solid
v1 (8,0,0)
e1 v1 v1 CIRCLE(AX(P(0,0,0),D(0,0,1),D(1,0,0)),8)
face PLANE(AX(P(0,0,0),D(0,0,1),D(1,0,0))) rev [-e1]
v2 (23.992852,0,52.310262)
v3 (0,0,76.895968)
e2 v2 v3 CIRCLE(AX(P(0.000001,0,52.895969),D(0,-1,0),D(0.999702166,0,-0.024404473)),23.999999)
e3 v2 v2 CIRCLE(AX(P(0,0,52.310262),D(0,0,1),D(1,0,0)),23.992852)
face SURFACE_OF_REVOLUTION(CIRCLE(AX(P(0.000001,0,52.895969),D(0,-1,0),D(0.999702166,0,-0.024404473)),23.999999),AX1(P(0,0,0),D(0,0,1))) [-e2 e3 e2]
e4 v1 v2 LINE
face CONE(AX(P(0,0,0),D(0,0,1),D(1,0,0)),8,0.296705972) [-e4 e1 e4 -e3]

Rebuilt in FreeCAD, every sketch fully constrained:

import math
import FreeCAD as App
import Part
import Sketcher

V = App.Vector
Q = App.Units.Quantity

doc = App.newDocument("Part")
params = doc.addObject("Spreadsheet::Sheet", "Params")
for row, (alias, value) in enumerate([
    ("sketch1_radius", "23.999999 mm"),
    ("sketch1_width", "8 mm"),
    ("revolution_angle", "360 deg"),
], start=1):
    params.set(f"A{row}", alias)
    params.set(f"B{row}", "=" + value)
    params.setAlias(f"B{row}", alias)

body = doc.addObject("PartDesign::Body", "Body")

# Sketch on XZ plane
sketch1 = body.newObject("Sketcher::SketchObject", "Sketch")
sketch1.AttachmentSupport = (doc.getObject("XZ_Plane"), [""])
sketch1.MapMode = "FlatFace"
sketch1.addGeometry(Part.LineSegment(V(0, 0, 0), V(8, 0, 0)), False)
sketch1.addGeometry(Part.LineSegment(V(8, 0, 0), V(23.992852, 52.310262, 0)), False)
sketch1.addGeometry(Part.ArcOfCircle(Part.Circle(V(0.000001, 52.895969, 0), V(0, 0, 1), 23.999999), math.radians(-1.398412), math.radians(90.000003)), False)
sketch1.addGeometry(Part.LineSegment(V(0, 76.895968, 0), V(0, 0, 0)), False)
sketch1.addConstraint(Sketcher.Constraint("Coincident", 0, 2, 1, 1))
sketch1.addConstraint(Sketcher.Constraint("Coincident", 1, 2, 2, 1))
sketch1.addConstraint(Sketcher.Constraint("Coincident", 2, 2, 3, 1))
sketch1.addConstraint(Sketcher.Constraint("Coincident", 3, 2, 0, 1))
sketch1.addConstraint(Sketcher.Constraint("Horizontal", 0))
sketch1.addConstraint(Sketcher.Constraint("Vertical", 3))
sketch1.addConstraint(Sketcher.Constraint("Coincident", 3, 2, -1, 1))
sketch1.addConstraint(Sketcher.Constraint("PointOnObject", 2, 3, -2))
sketch1.addConstraint(Sketcher.Constraint("Radius", 2, Q("23.999999 mm")))
sketch1.addConstraint(Sketcher.Constraint("DistanceX", 0, 1, 0, 2, Q("8 mm")))
sketch1.addConstraint(Sketcher.Constraint("Distance", 1, Q("54.70041 mm")))
sketch1.addConstraint(Sketcher.Constraint("DistanceY", 3, 2, 3, 1, Q("76.895968 mm")))
sketch1.setExpression("Constraints[8]", "Params.sketch1_radius")
sketch1.setExpression("Constraints[9]", "Params.sketch1_width")
revolution = body.newObject("PartDesign::Revolution", "Revolution")
revolution.Profile = sketch1
revolution.ReferenceAxis = (sketch1, ["V_Axis"])
revolution.setExpression("Angle", "Params.revolution_angle")

doc.recompute()
